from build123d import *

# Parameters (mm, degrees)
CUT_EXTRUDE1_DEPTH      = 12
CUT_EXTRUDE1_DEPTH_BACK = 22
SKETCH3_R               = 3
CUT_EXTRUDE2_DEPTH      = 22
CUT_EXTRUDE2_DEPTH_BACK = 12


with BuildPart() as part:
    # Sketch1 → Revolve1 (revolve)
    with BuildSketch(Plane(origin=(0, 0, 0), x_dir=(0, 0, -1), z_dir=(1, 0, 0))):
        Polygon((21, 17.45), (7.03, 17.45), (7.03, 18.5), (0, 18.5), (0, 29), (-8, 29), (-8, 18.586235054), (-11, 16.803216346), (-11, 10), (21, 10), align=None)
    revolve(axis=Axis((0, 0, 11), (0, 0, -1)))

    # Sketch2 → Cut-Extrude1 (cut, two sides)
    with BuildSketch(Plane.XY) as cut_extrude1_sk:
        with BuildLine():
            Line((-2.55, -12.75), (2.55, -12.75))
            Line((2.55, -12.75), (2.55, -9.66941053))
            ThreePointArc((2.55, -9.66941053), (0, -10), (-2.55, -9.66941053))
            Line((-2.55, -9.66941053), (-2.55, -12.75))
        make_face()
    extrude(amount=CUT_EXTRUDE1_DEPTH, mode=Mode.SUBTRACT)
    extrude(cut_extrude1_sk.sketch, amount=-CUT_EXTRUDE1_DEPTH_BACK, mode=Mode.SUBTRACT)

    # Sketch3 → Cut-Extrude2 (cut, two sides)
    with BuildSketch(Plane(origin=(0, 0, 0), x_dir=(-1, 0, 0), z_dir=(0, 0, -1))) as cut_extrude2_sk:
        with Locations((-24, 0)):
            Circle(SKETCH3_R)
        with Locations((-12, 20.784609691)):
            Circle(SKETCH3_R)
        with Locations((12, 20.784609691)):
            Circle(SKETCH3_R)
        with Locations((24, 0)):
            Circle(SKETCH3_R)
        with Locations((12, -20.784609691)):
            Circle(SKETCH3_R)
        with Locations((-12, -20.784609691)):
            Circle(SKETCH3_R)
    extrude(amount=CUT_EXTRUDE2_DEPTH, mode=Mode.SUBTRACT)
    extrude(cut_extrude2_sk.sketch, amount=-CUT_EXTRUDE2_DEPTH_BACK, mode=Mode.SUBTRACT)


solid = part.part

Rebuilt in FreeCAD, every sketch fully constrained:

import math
import FreeCAD as App
import Part
import Sketcher

V = App.Vector

doc = App.newDocument("Part")
params = doc.addObject("Spreadsheet::Sheet", "Params")
for row, (alias, value) in enumerate([
    ("sketch1_height", "8 mm"),
    ("sketch1_height2", "32 mm"),
    ("sketch1_width", "10.5 mm"),
    ("sketch1_width2", "1.05 mm"),
    ("sketch1_height3", "13.97 mm"),
    ("revolution_angle", "360 deg"),
    ("sketch2_radius", "10 mm"),
    ("sketch2_width", "5.1 mm"),
    ("sketch3_diameter", "6 mm"),
], start=1):
    params.set(f"A{row}", alias)
    params.set(f"B{row}", "=" + value)
    params.setAlias(f"B{row}", alias)

body = doc.addObject("PartDesign::Body", "Body")

# Sketch on YZ plane
sketch1 = doc.addObject("Sketcher::SketchObject", "Sketch")
body.addObject(sketch1)
sketch1.AttachmentSupport = (doc.YZ_Plane, [""])
sketch1.MapMode = "FlatFace"
sketch1.addGeometry([
    Part.LineSegment(V(17.4, -21, 0), V(17.4, -7, 0)),  # 0
    Part.LineSegment(V(17.4, -7, 0), V(18.5, -7, 0)),  # 1
    Part.LineSegment(V(18.5, -7, 0), V(18.5, 0, 0)),  # 2
    Part.LineSegment(V(18.5, 0, 0), V(29, 0, 0)),  # 3
    Part.LineSegment(V(29, 0, 0), V(29, 8, 0)),  # 4
    Part.LineSegment(V(29, 8, 0), V(18.6, 8, 0)),  # 5
    Part.LineSegment(V(18.6, 8, 0), V(16.8, 11, 0)),  # 6
    Part.LineSegment(V(16.8, 11, 0), V(10, 11, 0)),  # 7
    Part.LineSegment(V(10, 11, 0), V(10, -21, 0)),  # 8
    Part.LineSegment(V(10, -21, 0), V(17.4, -21, 0)),  # 9
], False)
sketch1.addConstraint([
    Sketcher.Constraint("Coincident", 0, 2, 1, 1),
    Sketcher.Constraint("Coincident", 1, 2, 2, 1),
    Sketcher.Constraint("Coincident", 2, 2, 3, 1),
    Sketcher.Constraint("Coincident", 3, 2, 4, 1),
    Sketcher.Constraint("Coincident", 4, 2, 5, 1),
    Sketcher.Constraint("Coincident", 5, 2, 6, 1),
    Sketcher.Constraint("Coincident", 6, 2, 7, 1),
    Sketcher.Constraint("Coincident", 7, 2, 8, 1),
    Sketcher.Constraint("Coincident", 8, 2, 9, 1),
    Sketcher.Constraint("Coincident", 9, 2, 0, 1),
    Sketcher.Constraint("Vertical", 0),
    Sketcher.Constraint("Horizontal", 1),
    Sketcher.Constraint("Vertical", 2),
    Sketcher.Constraint("Horizontal", 3),
    Sketcher.Constraint("Vertical", 4),
    Sketcher.Constraint("Horizontal", 5),
    Sketcher.Constraint("Horizontal", 7),
    Sketcher.Constraint("Vertical", 8),
    Sketcher.Constraint("Horizontal", 9),
    Sketcher.Constraint("PointOnObject", 2, 2, -1),
    Sketcher.Constraint("DistanceY", 4, 1, 4, 2, 8.0),
    Sketcher.Constraint("DistanceY", 8, 2, 8, 1, 32.0),
    Sketcher.Constraint("DistanceX", 3, 1, 3, 2, 10.5),
    Sketcher.Constraint("DistanceX", -1, 1, 3, 2, 29.0),
    Sketcher.Constraint("DistanceY", -1, 1, 6, 2, 11.0),
    Sketcher.Constraint("DistanceX", -1, 1, 7, 2, 10.0),
    Sketcher.Constraint("DistanceX", 1, 1, 1, 2, 1.05),
    Sketcher.Constraint("DistanceY", 0, 1, 0, 2, 13.97),
    Sketcher.Constraint("DistanceX", 5, 2, 5, 1, 10.413765),
    Sketcher.Constraint("DistanceX", 7, 2, 7, 1, 6.803216),
])
sketch1.setExpression("Constraints[20]", "Params.sketch1_height")
sketch1.setExpression("Constraints[21]", "Params.sketch1_height2")
sketch1.setExpression("Constraints[22]", "Params.sketch1_width")
sketch1.setExpression("Constraints[26]", "Params.sketch1_width2")
sketch1.setExpression("Constraints[27]", "Params.sketch1_height3")
revolution = doc.addObject("PartDesign::Revolution", "Revolution")
body.addObject(revolution)
revolution.Profile = sketch1
revolution.ReferenceAxis = (sketch1, ["V_Axis"])
revolution.setExpression("Angle", "Params.revolution_angle")

# Sketch on XY plane
sketch2 = doc.addObject("Sketcher::SketchObject", "Sketch001")
body.addObject(sketch2)
sketch2.AttachmentSupport = (doc.XY_Plane, [""])
sketch2.MapMode = "FlatFace"
sketch2.addGeometry([
    Part.LineSegment(V(-2.5, -12.8, 0), V(2.5, -12.8, 0)),
    Part.LineSegment(V(2.5, -12.8, 0), V(2.5, -9.7, 0)),
    Part.ArcOfCircle(Part.Circle(V(0, 0, 0), V(0, 0, 1), 10), math.radians(-105), math.radians(-75)),
    Part.LineSegment(V(-2.5, -9.7, 0), V(-2.5, -12.8, 0)),
], False)
sketch2.addConstraint([
    Sketcher.Constraint("Coincident", 0, 2, 1, 1),
    Sketcher.Constraint("Coincident", 1, 2, 2, 2),
    Sketcher.Constraint("Coincident", 2, 1, 3, 1),
    Sketcher.Constraint("Coincident", 3, 2, 0, 1),
    Sketcher.Constraint("Horizontal", 0),
    Sketcher.Constraint("Vertical", 1),
    Sketcher.Constraint("Vertical", 3),
    Sketcher.Constraint("Coincident", 2, 3, -1, 1),
    Sketcher.Constraint("Horizontal", 1, 2, 2, 1),
    Sketcher.Constraint("Radius", 2, 10.0),
    Sketcher.Constraint("DistanceX", 0, 1, 0, 2, 5.1),
    Sketcher.Constraint("DistanceY", 0, 2, -1, 1, 12.75),
])
sketch2.setExpression("Constraints[9]", "Params.sketch2_radius")
sketch2.setExpression("Constraints[10]", "Params.sketch2_width")
pocket1 = doc.addObject("PartDesign::Pocket", "Pocket")
body.addObject(pocket1)
pocket1.Profile = sketch2
pocket1.Type = "ThroughAll"
pocket1.Midplane = True

# Sketch on XY plane
sketch3 = doc.addObject("Sketcher::SketchObject", "Sketch002")
body.addObject(sketch3)
sketch3.AttachmentSupport = (doc.XY_Plane, [""])
sketch3.MapMode = "FlatFace"
sketch3.addGeometry([
    Part.Circle(V(24, 0, 0), V(0, 0, 1), 3),  # 0
    Part.Circle(V(12, 20.8, 0), V(0, 0, 1), 3),  # 1
    Part.Circle(V(-12, 20.8, 0), V(0, 0, 1), 3),  # 2
    Part.Circle(V(-24, 0, 0), V(0, 0, 1), 3),  # 3
    Part.Circle(V(-12, -20.8, 0), V(0, 0, 1), 3),  # 4
    Part.Circle(V(12, -20.8, 0), V(0, 0, 1), 3),  # 5
], False)
sketch3.addConstraint([
    Sketcher.Constraint("Equal", 0, 1),
    Sketcher.Constraint("Equal", 1, 2),
    Sketcher.Constraint("Equal", 2, 3),
    Sketcher.Constraint("Equal", 3, 4),
    Sketcher.Constraint("Equal", 4, 5),
    Sketcher.Constraint("Symmetric", 0, 3, 3, 3, -1, 1),
    Sketcher.Constraint("Symmetric", 1, 3, 4, 3, -1, 1),
    Sketcher.Constraint("Symmetric", 2, 3, 5, 3, -1, 1),
    Sketcher.Constraint("Symmetric", 1, 3, 2, 3, -2),
    Sketcher.Constraint("PointOnObject", 0, 3, -1),
    Sketcher.Constraint("Diameter", 0, 6.0),
    Sketcher.Constraint("DistanceX", -1, 1, 0, 3, 24.0),
    Sketcher.Constraint("DistanceX", -1, 1, 1, 3, 12.0),
    Sketcher.Constraint("DistanceY", -1, 1, 1, 3, 20.78461),
])
sketch3.setExpression("Constraints[10]", "Params.sketch3_diameter")
pocket2 = doc.addObject("PartDesign::Pocket", "Pocket001")
body.addObject(pocket2)
pocket2.Profile = sketch3
pocket2.Type = "ThroughAll"
pocket2.Midplane = True

doc.recompute()
